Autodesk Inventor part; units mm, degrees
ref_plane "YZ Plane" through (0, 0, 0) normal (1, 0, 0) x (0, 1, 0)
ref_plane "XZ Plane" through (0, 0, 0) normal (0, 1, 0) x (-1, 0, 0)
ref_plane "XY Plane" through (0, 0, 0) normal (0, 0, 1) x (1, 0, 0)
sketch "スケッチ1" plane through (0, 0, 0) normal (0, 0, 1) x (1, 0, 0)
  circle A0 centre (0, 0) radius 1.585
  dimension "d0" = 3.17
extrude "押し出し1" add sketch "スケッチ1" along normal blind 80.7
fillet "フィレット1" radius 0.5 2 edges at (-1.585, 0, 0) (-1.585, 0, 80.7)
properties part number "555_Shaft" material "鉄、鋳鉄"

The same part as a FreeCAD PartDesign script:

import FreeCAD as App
import Part
import Sketcher

V = App.Vector


def edges_at(feature, points):
    """Names of the edges that pass closest to the given points."""
    edges = feature.Shape.Edges
    near = lambda p: min(range(len(edges)), key=lambda i: edges[i].distToShape(Part.Vertex(*p))[0])
    return sorted({f"Edge{near(p) + 1}" for p in points})

doc = App.newDocument("Part")
body = doc.addObject("PartDesign::Body", "Body")

# Sketch on XY plane
sketch1 = body.newObject("Sketcher::SketchObject", "Sketch")
sketch1.AttachmentSupport = (doc.getObject("XY_Plane"), [""])
sketch1.MapMode = "FlatFace"
sketch1.addGeometry(Part.Circle(V(0, 0, 0), V(0, 0, 1), 1.585), False)
sketch1.addConstraint([
    Sketcher.Constraint("Coincident", 0, 3, -1, 1),
    Sketcher.Constraint("Diameter", 0, 3.17),
])
pad1 = body.newObject("PartDesign::Pad", "Pad")
pad1.Profile = sketch1
pad1.Length = 80.7
doc.recompute()

fillet = body.newObject("PartDesign::Fillet", "Fillet")
fillet.Base = (pad1, edges_at(pad1, [(-1.585, 0, 0), (-1.585, 0, 80.7)]))
fillet.Radius = 0.5

doc.recompute()
